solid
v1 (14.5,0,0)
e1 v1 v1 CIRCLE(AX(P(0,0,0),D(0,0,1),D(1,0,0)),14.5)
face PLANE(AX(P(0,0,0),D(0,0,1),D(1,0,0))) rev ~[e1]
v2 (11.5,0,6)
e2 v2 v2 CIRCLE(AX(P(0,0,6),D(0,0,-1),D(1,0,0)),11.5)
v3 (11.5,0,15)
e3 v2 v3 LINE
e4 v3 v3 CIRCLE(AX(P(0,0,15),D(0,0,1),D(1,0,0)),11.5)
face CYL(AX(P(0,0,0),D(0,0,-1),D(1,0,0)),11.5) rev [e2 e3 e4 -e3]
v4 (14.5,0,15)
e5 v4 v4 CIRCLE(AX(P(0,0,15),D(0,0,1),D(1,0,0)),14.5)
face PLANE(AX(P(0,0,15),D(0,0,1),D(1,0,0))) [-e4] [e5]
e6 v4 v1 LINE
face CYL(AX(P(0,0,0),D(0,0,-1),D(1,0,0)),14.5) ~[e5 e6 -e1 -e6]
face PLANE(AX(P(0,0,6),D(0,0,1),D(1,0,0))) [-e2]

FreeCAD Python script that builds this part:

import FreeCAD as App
import Part
import Sketcher

doc = App.newDocument("Part")
body = doc.addObject("PartDesign::Body", "Body")

# Sketch on XY plane
sketch1 = body.newObject("Sketcher::SketchObject", "Sketch")
sketch1.AttachmentSupport = (doc.getObject("XY_Plane"), [""])
sketch1.MapMode = "FlatFace"
sketch1.addGeometry(Part.Circle(App.Vector(0, 0, 0), App.Vector(0, 0, 1), 14.5), False)
sketch1.addGeometry(Part.Circle(App.Vector(0, 0, 0), App.Vector(0, 0, 1), 11.5), False)
sketch1.addConstraint(Sketcher.Constraint("Coincident", 0, 3, -1, 1))
sketch1.addConstraint(Sketcher.Constraint("Coincident", 1, 3, -1, 1))
sketch1.addConstraint(Sketcher.Constraint("Diameter", 0, 29.0))
sketch1.addConstraint(Sketcher.Constraint("Diameter", 1, 23.0))
pad1 = body.newObject("PartDesign::Pad", "Pad")
pad1.Profile = sketch1
pad1.Length = 15

# Sketch on XY plane
sketch2 = body.newObject("Sketcher::SketchObject", "Sketch001")
sketch2.AttachmentSupport = (doc.getObject("XY_Plane"), [""])
sketch2.MapMode = "FlatFace"
sketch2.addGeometry(Part.Circle(App.Vector(0, 0, 0), App.Vector(0, 0, 1), 14.5), False)
sketch2.addConstraint(Sketcher.Constraint("Coincident", 0, 3, -1, 1))
sketch2.addConstraint(Sketcher.Constraint("Diameter", 0, 29.0))
pad2 = body.newObject("PartDesign::Pad", "Pad001")
pad2.Profile = sketch2
pad2.Length = 6

doc.recompute()
